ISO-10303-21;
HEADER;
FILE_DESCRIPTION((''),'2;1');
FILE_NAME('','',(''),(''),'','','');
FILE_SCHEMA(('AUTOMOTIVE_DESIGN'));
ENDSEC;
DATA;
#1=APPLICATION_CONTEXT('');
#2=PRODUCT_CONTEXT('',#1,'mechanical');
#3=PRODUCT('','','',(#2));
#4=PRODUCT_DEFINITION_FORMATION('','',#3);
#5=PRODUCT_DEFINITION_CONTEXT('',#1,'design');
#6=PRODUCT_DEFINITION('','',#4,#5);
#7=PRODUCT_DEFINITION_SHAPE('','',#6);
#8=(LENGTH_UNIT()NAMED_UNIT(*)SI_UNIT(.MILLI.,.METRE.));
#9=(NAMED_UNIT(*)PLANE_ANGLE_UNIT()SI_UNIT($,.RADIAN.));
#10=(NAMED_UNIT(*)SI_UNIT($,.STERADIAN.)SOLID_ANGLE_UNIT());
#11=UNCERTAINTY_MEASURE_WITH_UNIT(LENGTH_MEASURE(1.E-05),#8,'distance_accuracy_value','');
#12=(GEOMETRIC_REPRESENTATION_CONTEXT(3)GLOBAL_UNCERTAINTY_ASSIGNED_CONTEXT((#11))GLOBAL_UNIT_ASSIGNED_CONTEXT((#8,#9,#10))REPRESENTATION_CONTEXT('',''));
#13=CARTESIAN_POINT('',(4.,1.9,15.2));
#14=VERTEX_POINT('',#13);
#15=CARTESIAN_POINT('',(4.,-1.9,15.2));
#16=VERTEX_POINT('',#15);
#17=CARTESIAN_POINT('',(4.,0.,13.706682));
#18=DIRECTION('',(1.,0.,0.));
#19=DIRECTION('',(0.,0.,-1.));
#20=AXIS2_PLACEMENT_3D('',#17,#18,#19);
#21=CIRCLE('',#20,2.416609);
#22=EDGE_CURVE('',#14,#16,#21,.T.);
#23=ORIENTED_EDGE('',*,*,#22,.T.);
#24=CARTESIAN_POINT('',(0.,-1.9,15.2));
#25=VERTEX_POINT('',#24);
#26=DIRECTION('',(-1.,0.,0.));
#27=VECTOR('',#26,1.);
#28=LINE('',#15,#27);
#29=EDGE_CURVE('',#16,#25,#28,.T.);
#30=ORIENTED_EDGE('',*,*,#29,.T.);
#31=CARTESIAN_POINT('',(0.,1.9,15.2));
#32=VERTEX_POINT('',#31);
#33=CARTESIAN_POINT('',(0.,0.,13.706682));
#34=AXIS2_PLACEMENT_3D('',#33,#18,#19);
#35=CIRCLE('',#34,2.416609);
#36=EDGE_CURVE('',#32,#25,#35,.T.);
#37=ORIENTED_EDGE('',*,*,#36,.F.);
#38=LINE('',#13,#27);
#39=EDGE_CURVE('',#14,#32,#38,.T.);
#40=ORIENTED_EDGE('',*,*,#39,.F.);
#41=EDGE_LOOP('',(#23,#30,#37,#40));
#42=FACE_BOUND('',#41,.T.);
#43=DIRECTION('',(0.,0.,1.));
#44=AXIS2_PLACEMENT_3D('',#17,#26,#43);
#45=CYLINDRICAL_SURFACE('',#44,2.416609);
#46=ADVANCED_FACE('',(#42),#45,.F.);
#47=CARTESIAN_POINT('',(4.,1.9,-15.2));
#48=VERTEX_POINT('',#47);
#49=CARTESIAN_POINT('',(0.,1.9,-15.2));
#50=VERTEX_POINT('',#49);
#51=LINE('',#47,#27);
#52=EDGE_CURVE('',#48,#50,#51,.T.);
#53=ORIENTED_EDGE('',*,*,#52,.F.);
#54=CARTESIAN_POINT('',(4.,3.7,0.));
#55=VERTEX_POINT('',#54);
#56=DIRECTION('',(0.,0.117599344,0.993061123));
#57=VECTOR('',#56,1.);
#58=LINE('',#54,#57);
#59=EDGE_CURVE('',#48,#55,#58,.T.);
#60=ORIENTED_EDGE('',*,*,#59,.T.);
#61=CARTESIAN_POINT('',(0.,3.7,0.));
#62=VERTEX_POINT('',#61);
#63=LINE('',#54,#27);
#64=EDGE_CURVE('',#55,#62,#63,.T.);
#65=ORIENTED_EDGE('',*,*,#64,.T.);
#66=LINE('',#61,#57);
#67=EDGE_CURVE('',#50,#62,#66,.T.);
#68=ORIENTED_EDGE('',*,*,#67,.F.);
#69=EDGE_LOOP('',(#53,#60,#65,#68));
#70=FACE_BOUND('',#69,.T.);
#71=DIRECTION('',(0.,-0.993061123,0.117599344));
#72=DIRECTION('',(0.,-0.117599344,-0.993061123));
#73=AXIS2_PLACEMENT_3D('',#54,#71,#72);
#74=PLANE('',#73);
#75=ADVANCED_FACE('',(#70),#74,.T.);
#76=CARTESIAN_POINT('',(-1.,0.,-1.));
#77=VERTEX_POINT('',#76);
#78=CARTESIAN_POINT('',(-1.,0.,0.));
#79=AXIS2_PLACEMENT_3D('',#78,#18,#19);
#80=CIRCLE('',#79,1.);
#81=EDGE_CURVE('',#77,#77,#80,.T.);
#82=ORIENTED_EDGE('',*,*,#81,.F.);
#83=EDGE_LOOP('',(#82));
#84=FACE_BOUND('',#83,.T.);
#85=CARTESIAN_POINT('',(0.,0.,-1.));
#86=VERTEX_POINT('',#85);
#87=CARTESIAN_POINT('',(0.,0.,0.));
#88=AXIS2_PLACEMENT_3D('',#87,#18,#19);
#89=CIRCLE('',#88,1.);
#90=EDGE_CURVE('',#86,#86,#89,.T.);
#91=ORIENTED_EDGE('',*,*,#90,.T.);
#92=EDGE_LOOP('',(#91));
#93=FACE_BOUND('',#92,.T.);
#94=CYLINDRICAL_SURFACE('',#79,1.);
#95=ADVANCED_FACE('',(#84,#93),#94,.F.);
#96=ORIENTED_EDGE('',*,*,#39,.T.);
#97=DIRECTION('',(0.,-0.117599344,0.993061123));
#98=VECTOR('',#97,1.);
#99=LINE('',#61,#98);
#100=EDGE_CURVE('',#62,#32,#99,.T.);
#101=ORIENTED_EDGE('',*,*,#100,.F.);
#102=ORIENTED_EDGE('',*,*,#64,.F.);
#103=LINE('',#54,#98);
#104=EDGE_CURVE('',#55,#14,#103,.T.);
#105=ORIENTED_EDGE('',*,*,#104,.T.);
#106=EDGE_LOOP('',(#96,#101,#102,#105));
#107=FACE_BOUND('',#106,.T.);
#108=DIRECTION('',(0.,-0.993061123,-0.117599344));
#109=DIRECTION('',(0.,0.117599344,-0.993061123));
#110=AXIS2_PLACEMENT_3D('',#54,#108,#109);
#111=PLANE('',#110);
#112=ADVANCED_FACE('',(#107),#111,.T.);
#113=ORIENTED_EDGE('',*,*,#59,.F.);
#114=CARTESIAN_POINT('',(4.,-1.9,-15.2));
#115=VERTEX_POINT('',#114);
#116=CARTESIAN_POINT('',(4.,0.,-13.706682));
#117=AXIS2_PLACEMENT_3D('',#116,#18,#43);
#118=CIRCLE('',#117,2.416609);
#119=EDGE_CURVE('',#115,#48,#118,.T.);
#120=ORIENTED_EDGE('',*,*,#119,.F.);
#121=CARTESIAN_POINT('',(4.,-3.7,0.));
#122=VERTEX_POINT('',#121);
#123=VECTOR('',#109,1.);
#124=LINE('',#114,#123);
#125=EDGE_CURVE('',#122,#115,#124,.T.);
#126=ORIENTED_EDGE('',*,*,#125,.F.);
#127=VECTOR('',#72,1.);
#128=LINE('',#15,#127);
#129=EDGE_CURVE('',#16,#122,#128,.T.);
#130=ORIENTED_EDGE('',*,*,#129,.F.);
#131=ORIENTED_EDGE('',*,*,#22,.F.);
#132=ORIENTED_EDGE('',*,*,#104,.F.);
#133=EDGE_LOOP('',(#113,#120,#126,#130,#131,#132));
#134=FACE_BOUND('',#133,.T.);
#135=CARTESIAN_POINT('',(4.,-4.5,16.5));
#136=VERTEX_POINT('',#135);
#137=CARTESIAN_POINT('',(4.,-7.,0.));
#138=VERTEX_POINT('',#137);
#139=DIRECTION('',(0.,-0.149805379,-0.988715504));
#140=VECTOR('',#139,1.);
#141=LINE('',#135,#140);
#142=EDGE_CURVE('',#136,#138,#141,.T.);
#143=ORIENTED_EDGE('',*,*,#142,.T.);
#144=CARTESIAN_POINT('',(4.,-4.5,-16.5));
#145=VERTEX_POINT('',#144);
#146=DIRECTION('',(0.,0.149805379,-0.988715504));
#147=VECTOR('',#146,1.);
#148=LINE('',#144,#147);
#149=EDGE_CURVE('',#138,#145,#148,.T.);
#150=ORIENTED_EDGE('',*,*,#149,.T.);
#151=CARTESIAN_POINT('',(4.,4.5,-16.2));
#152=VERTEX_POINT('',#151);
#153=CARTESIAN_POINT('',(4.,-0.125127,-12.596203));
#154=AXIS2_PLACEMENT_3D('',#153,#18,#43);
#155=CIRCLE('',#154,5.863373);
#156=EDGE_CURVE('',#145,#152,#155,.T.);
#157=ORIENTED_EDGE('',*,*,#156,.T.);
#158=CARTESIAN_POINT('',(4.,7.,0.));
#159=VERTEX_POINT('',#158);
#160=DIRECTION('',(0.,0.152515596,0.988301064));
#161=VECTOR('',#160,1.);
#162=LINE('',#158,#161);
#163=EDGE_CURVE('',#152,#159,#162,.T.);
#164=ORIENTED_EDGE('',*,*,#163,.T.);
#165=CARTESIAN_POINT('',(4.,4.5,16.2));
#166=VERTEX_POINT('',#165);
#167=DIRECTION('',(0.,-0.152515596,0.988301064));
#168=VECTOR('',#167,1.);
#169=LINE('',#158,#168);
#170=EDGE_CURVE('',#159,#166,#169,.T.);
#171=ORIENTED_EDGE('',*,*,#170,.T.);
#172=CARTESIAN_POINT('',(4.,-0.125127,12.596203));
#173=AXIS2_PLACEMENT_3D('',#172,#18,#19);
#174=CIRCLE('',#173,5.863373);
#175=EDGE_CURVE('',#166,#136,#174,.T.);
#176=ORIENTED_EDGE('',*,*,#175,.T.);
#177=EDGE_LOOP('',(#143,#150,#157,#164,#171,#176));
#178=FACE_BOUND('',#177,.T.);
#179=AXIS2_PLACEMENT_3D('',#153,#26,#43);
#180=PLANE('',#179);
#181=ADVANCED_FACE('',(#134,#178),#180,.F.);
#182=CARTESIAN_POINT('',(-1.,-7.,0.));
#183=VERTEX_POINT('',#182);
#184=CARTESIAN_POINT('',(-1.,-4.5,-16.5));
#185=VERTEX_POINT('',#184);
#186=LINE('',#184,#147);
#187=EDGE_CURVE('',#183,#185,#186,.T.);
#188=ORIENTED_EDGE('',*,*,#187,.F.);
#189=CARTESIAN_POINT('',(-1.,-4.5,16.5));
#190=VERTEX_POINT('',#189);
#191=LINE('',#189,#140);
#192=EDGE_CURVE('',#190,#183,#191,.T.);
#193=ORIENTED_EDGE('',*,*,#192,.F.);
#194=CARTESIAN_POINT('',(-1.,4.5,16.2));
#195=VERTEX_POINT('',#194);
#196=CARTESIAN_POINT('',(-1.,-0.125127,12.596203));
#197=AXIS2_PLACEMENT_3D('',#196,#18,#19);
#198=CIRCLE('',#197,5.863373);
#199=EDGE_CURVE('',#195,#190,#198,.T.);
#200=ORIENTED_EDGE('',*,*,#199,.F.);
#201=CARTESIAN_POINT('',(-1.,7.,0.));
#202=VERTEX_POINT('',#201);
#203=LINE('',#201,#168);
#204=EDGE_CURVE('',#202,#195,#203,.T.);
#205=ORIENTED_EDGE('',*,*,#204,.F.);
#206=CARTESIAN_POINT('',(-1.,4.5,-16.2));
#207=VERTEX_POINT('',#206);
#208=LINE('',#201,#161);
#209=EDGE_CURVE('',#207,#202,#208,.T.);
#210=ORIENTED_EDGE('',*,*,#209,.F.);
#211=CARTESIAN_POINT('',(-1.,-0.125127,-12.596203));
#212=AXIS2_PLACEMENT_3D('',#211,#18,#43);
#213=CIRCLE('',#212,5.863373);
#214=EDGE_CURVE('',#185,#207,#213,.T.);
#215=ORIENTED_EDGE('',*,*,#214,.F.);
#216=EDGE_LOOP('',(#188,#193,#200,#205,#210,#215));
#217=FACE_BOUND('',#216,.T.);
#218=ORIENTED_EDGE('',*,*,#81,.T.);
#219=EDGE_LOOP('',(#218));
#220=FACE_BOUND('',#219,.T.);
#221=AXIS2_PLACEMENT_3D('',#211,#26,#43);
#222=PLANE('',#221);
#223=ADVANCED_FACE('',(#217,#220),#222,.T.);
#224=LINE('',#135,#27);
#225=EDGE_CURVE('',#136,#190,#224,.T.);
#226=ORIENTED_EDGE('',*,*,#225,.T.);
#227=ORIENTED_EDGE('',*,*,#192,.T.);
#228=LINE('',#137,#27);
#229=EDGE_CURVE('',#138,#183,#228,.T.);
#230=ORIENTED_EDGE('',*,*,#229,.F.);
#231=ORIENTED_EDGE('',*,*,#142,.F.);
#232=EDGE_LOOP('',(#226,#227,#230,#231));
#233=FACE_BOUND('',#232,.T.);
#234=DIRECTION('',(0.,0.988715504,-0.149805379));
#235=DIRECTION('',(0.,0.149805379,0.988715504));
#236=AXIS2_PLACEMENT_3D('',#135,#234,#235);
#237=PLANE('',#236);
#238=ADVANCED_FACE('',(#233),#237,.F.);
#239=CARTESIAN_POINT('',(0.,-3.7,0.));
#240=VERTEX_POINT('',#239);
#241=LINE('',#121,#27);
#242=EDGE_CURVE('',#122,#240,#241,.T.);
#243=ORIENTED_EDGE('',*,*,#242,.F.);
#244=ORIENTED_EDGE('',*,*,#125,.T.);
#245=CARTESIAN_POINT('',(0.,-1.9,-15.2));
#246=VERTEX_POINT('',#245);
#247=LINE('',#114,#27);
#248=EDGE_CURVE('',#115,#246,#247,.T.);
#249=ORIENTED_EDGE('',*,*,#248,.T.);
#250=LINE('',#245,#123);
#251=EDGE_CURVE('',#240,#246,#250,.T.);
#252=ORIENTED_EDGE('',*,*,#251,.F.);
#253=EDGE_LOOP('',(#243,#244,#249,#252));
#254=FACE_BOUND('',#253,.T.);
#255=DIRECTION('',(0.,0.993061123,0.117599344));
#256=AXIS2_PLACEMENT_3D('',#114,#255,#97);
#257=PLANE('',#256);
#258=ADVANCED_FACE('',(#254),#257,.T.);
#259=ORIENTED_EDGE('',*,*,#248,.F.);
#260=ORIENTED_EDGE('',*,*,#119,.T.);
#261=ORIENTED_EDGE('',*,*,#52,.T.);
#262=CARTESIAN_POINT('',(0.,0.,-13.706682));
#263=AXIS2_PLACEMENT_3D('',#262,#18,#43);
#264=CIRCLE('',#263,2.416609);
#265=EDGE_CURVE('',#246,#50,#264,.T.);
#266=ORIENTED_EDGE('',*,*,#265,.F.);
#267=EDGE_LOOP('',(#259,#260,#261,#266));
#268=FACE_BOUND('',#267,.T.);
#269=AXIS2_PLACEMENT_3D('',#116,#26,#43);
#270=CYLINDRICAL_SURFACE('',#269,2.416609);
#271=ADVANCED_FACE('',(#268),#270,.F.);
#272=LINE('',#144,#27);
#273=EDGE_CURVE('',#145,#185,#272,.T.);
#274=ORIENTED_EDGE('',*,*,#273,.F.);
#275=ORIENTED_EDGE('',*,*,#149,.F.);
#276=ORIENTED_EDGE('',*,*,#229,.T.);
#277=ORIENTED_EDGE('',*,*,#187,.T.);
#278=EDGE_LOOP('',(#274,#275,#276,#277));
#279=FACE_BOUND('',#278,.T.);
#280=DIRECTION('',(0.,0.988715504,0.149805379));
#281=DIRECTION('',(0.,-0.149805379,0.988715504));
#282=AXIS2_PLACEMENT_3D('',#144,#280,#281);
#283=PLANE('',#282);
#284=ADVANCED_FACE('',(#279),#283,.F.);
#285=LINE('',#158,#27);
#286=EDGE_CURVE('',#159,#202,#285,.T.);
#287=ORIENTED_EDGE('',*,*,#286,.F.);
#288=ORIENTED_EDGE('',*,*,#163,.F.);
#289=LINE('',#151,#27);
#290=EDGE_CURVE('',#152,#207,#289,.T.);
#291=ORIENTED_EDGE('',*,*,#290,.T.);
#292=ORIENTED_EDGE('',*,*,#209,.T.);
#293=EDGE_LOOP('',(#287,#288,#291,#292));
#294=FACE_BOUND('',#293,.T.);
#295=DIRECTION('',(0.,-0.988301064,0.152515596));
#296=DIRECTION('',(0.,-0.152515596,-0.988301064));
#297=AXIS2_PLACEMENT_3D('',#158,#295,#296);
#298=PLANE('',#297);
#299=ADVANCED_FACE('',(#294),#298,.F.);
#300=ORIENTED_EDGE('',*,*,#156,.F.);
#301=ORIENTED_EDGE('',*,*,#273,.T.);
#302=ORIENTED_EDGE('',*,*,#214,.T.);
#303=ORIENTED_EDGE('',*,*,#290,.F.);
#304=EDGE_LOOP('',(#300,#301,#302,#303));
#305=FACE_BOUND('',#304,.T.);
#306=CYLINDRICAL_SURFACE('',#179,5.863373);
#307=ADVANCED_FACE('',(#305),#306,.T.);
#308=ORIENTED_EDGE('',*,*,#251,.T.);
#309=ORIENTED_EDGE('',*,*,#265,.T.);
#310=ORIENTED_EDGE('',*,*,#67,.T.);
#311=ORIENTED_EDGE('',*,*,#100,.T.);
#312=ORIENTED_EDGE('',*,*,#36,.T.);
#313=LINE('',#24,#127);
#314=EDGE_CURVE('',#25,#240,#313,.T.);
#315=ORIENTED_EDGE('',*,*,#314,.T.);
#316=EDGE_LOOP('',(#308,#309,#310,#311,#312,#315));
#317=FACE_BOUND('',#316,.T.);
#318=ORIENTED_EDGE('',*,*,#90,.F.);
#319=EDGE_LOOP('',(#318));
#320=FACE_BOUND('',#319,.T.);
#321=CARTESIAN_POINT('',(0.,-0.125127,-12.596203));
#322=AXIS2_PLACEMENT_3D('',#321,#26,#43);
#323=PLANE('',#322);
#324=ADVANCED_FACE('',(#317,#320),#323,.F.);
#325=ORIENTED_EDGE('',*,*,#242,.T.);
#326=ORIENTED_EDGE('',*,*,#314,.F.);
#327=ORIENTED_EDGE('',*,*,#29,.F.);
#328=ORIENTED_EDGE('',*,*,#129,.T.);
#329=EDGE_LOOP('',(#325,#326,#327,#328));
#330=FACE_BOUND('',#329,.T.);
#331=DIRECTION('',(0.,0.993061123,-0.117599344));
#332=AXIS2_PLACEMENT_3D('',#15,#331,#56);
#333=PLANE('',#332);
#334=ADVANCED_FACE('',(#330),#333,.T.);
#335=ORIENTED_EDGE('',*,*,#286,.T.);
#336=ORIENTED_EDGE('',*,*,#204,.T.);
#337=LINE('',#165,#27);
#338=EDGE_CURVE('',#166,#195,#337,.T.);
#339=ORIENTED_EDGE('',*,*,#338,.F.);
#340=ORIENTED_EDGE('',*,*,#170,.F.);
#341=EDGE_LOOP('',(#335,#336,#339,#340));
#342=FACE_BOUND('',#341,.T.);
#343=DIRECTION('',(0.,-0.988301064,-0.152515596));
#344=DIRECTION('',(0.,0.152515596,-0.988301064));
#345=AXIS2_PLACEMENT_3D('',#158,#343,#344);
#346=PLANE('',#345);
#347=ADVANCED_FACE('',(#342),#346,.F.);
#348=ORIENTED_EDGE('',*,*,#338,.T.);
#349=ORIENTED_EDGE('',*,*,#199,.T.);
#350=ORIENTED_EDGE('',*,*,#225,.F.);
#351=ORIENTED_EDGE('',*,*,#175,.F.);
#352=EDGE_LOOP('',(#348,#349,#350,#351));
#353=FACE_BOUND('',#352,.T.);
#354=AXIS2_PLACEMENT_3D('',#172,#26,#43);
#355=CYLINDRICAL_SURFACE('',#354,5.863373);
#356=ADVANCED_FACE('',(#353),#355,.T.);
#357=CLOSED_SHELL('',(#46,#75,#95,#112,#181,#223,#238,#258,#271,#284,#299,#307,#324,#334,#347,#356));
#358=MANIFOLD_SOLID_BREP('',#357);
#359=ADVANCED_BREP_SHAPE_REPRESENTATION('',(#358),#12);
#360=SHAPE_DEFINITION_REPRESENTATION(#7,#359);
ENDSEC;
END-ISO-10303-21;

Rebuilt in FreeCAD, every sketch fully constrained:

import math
import FreeCAD as App
import Part
import Sketcher
Q = App.Units.Quantity

doc = App.newDocument("Part")
body = doc.addObject("PartDesign::Body", "Body")

# Sketch on YZ plane
sketch1 = body.newObject("Sketcher::SketchObject", "Sketch")
sketch1.AttachmentSupport = (doc.getObject("YZ_Plane"), [""])
sketch1.MapMode = "FlatFace"
sketch1.addGeometry([
    Part.LineSegment(App.Vector(7, 0, 0), App.Vector(4.5, 16.2, 0)),  # 0
    Part.ArcOfCircle(Part.Circle(App.Vector(-0.1, 12.6, 0), App.Vector(0, 0, 1), 5.9), math.radians(38), math.radians(138)),  # 1
    Part.LineSegment(App.Vector(-4.5, 16.5, 0), App.Vector(-7, 0, 0)),  # 2
    Part.LineSegment(App.Vector(-7, 0, 0), App.Vector(-4.5, -16.5, 0)),  # 3
    Part.ArcOfCircle(Part.Circle(App.Vector(-0.1, -12.6, 0), App.Vector(0, 0, 1), 5.9), math.radians(-138), math.radians(-38)),  # 4
    Part.LineSegment(App.Vector(4.5, -16.2, 0), App.Vector(7, 0, 0)),  # 5
    Part.LineSegment(App.Vector(1.9, 15.2, 0), App.Vector(3.7, 0, 0)),  # 6
    Part.LineSegment(App.Vector(3.7, 0, 0), App.Vector(1.9, -15.2, 0)),  # 7
    Part.ArcOfCircle(Part.Circle(App.Vector(0, -13.7, 0), App.Vector(0, 0, 1), 2.4), math.radians(-142), math.radians(-38)),  # 8
    Part.LineSegment(App.Vector(-1.9, -15.2, 0), App.Vector(-3.7, 0, 0)),  # 9
    Part.LineSegment(App.Vector(-3.7, 0, 0), App.Vector(-1.9, 15.2, 0)),  # 10
    Part.ArcOfCircle(Part.Circle(App.Vector(0, 13.7, 0), App.Vector(0, 0, 1), 2.4), math.radians(38), math.radians(142)),  # 11
], False)
sketch1.addConstraint([
    Sketcher.Constraint("Coincident", 0, 2, 1, 1),
    Sketcher.Constraint("Coincident", 1, 2, 2, 1),
    Sketcher.Constraint("Coincident", 2, 2, 3, 1),
    Sketcher.Constraint("Coincident", 3, 2, 4, 1),
    Sketcher.Constraint("Coincident", 4, 2, 5, 1),
    Sketcher.Constraint("Coincident", 5, 2, 0, 1),
    Sketcher.Constraint("Coincident", 6, 2, 7, 1),
    Sketcher.Constraint("Coincident", 7, 2, 8, 2),
    Sketcher.Constraint("Coincident", 8, 1, 9, 1),
    Sketcher.Constraint("Coincident", 9, 2, 10, 1),
    Sketcher.Constraint("Coincident", 10, 2, 11, 2),
    Sketcher.Constraint("Coincident", 11, 1, 6, 1),
    Sketcher.Constraint("Equal", 1, 4),
    Sketcher.Constraint("Equal", 8, 11),
    Sketcher.Constraint("Symmetric", 8, 3, 11, 3, -1, 1),
    Sketcher.Constraint("Symmetric", 2, 2, 5, 2, -1, 1),
    Sketcher.Constraint("Symmetric", 6, 2, 9, 2, -1, 1),
    Sketcher.Constraint("Symmetric", 7, 2, 8, 1, -2),
    Sketcher.Constraint("Symmetric", 1, 3, 4, 3, -1),
    Sketcher.Constraint("PointOnObject", 2, 2, -1),
    Sketcher.Constraint("PointOnObject", 6, 2, -1),
    Sketcher.Constraint("Parallel", 6, 9),
    Sketcher.Constraint("Parallel", 7, 10),
    Sketcher.Constraint("Vertical", 1, 2, 3, 2),
    Sketcher.Constraint("Vertical", 0, 2, 4, 2),
    Sketcher.Constraint("DistanceX", 2, 2, -1, 1, Q("7 mm")),
    Sketcher.Constraint("DistanceX", 1, 2, 0, 2, Q("9 mm")),
    Sketcher.Constraint("DistanceY", 4, 2, 7, 2, Q("1 mm")),
    Sketcher.Constraint("DistanceX", -1, 1, 0, 2, Q("4.5 mm")),
    Sketcher.Constraint("DistanceY", -1, 1, 0, 2, Q("16.2 mm")),
    Sketcher.Constraint("DistanceY", -1, 1, 1, 2, Q("16.5 mm")),
    Sketcher.Constraint("DistanceX", -1, 1, 6, 2, Q("3.7 mm")),
    Sketcher.Constraint("DistanceX", -1, 1, 7, 2, Q("1.9 mm")),
    Sketcher.Constraint("Radius", 8, Q("2.416609 mm")),
    Sketcher.Constraint("Radius", 1, Q("5.863373 mm")),
])
pad1 = body.newObject("PartDesign::Pad", "Pad")
pad1.Profile = sketch1
pad1.Length = 4

# Sketch on YZ plane
sketch2 = body.newObject("Sketcher::SketchObject", "Sketch001")
sketch2.AttachmentSupport = (doc.getObject("YZ_Plane"), [""])
sketch2.MapMode = "FlatFace"
sketch2.addGeometry([
    Part.LineSegment(App.Vector(7, 0, 0), App.Vector(4.5, 16.2, 0)),  # 0
    Part.ArcOfCircle(Part.Circle(App.Vector(-0.1, 12.6, 0), App.Vector(0, 0, 1), 5.9), math.radians(38), math.radians(138)),  # 1
    Part.LineSegment(App.Vector(-4.5, 16.5, 0), App.Vector(-7, 0, 0)),  # 2
    Part.LineSegment(App.Vector(-7, 0, 0), App.Vector(-4.5, -16.5, 0)),  # 3
    Part.ArcOfCircle(Part.Circle(App.Vector(-0.1, -12.6, 0), App.Vector(0, 0, 1), 5.9), math.radians(-138), math.radians(-38)),  # 4
    Part.LineSegment(App.Vector(4.5, -16.2, 0), App.Vector(7, 0, 0)),  # 5
    Part.Circle(App.Vector(0, 0, 0), App.Vector(0, 0, 1), 1),  # 6
], False)
sketch2.addConstraint([
    Sketcher.Constraint("Coincident", 0, 2, 1, 1),
    Sketcher.Constraint("Coincident", 1, 2, 2, 1),
    Sketcher.Constraint("Coincident", 2, 2, 3, 1),
    Sketcher.Constraint("Coincident", 3, 2, 4, 1),
    Sketcher.Constraint("Coincident", 4, 2, 5, 1),
    Sketcher.Constraint("Coincident", 5, 2, 0, 1),
    Sketcher.Constraint("Coincident", 6, 3, -1, 1),
    Sketcher.Constraint("Equal", 1, 4),
    Sketcher.Constraint("Symmetric", 2, 2, 5, 2, -1, 1),
    Sketcher.Constraint("Symmetric", 1, 3, 4, 3, -1),
    Sketcher.Constraint("PointOnObject", 2, 2, -1),
    Sketcher.Constraint("Vertical", 1, 2, 3, 2),
    Sketcher.Constraint("Vertical", 0, 2, 4, 2),
    Sketcher.Constraint("Diameter", 6, Q("2 mm")),
    Sketcher.Constraint("DistanceX", 2, 2, -1, 1, Q("7 mm")),
    Sketcher.Constraint("DistanceX", 1, 2, 0, 2, Q("9 mm")),
    Sketcher.Constraint("DistanceY", 3, 2, 1, 2, Q("33 mm")),
    Sketcher.Constraint("DistanceX", -1, 1, 0, 2, Q("4.5 mm")),
    Sketcher.Constraint("DistanceY", -1, 1, 0, 2, Q("16.2 mm")),
    Sketcher.Constraint("Radius", 1, Q("5.863373 mm")),
])
pad2 = body.newObject("PartDesign::Pad", "Pad001")
pad2.Profile = sketch2
pad2.Length = 1
pad2.Reversed = True

doc.recompute()
